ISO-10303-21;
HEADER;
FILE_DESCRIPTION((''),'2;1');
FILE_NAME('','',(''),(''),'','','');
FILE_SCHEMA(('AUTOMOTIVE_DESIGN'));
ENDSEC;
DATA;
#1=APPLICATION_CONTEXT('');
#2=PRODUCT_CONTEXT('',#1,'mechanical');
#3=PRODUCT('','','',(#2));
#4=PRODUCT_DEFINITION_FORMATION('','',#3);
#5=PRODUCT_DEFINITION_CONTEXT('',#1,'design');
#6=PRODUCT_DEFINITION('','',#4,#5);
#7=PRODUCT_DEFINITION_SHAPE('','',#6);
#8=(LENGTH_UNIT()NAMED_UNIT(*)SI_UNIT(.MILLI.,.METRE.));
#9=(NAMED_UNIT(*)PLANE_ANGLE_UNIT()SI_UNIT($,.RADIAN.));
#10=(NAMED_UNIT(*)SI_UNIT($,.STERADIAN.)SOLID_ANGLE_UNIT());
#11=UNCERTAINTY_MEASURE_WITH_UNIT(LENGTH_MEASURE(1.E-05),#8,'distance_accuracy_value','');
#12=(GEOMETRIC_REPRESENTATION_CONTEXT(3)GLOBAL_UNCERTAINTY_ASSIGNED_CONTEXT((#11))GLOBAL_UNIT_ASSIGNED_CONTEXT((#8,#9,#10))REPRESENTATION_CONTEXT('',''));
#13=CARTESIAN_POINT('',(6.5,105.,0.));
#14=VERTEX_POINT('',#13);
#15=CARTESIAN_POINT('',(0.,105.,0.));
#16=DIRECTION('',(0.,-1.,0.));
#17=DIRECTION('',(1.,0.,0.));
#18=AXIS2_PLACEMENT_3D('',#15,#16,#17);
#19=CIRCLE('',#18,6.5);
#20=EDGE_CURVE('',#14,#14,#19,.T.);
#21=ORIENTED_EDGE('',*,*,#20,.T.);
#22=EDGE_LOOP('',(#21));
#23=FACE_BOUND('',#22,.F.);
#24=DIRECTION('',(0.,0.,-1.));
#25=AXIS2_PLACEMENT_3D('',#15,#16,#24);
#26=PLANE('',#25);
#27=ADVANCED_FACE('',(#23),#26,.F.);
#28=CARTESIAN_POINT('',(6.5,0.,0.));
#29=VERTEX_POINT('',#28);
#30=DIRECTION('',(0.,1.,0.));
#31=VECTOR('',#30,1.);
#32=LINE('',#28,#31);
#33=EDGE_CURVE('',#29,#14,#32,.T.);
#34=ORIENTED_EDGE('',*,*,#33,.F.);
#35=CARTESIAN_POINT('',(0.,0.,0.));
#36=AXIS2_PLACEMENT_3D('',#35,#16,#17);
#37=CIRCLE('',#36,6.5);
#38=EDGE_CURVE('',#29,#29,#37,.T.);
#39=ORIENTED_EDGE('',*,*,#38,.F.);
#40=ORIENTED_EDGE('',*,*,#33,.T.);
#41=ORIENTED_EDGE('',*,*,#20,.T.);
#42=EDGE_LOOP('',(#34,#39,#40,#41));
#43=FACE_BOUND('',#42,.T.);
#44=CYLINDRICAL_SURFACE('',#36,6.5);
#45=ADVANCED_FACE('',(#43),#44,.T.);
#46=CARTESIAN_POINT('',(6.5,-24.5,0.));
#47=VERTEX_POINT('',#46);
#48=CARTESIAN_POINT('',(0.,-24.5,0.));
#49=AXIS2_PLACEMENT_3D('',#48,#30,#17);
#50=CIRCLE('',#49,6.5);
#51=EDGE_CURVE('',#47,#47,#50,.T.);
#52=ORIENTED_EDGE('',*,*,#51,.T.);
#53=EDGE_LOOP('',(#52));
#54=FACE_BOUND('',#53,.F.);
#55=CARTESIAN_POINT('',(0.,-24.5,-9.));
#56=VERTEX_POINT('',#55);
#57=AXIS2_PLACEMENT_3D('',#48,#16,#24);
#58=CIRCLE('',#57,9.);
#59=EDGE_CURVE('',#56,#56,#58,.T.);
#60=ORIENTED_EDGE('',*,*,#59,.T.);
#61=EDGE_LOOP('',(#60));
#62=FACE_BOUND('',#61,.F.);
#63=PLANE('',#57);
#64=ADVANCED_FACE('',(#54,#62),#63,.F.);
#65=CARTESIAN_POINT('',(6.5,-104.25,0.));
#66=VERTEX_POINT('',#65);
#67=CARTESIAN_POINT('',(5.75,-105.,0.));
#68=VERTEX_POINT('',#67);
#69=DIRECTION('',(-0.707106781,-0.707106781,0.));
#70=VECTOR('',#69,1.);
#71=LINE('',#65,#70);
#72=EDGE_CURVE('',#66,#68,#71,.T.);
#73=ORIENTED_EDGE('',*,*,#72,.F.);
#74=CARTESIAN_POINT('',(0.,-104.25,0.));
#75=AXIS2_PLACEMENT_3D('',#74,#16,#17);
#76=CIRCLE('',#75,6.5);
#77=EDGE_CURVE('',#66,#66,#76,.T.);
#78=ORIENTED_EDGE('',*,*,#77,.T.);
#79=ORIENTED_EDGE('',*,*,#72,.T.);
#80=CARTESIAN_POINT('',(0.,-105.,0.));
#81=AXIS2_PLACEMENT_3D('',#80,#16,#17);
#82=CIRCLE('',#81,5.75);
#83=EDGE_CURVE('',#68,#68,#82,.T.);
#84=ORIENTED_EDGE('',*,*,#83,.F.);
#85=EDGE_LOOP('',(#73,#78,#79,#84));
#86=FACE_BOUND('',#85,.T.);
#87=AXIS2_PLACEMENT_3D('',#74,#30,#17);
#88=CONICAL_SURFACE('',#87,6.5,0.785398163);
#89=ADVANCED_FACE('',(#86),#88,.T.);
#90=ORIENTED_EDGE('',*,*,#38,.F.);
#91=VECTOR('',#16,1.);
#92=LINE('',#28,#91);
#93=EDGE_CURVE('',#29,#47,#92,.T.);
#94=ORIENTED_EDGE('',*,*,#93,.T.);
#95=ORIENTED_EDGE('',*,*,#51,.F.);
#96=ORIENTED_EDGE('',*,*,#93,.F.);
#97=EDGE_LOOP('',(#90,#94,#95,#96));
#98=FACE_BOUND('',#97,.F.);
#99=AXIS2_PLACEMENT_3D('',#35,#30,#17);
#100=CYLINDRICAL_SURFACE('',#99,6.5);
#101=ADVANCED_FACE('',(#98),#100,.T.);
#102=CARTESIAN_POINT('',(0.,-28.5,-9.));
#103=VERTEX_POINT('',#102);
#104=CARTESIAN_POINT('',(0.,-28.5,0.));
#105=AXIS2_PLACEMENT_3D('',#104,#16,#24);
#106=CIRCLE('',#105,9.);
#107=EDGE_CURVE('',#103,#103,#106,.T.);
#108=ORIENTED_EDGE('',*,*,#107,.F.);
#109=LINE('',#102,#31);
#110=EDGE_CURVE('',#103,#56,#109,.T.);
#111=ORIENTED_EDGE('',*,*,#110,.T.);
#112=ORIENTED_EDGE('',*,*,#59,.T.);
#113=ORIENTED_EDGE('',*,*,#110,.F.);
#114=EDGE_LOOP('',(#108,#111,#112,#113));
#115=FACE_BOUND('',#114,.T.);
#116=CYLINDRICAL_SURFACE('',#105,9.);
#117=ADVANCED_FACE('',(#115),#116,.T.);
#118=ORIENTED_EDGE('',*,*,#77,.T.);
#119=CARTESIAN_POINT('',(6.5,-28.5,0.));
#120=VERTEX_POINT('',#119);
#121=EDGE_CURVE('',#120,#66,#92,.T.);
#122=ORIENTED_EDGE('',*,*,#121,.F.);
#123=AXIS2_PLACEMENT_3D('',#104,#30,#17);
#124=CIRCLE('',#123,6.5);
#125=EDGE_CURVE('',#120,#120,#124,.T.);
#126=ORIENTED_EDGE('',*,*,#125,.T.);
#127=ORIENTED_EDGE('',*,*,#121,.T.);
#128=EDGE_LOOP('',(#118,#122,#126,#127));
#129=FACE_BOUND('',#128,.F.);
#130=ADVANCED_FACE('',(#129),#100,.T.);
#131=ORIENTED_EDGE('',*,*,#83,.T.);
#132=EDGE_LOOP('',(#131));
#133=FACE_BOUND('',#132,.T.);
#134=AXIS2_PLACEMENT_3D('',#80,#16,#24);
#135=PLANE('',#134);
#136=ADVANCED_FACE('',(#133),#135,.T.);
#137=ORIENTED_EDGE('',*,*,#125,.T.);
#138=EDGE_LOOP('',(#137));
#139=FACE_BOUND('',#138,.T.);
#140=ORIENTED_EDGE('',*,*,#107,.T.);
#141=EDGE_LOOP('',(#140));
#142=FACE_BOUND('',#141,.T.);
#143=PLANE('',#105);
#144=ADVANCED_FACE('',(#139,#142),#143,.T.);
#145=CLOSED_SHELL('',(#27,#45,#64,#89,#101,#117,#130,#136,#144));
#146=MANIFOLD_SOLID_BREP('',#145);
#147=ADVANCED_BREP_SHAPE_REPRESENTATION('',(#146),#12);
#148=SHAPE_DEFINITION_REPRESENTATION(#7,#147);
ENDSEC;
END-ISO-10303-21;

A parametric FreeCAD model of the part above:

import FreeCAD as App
import Part
import Sketcher
from FreeCAD import Vector


def edges_at(feature, points):
    """Names of the edges that pass closest to the given points."""
    edges = feature.Shape.Edges
    near = lambda p: min(range(len(edges)), key=lambda i: edges[i].distToShape(Part.Vertex(*p))[0])
    return sorted({f"Edge{near(p) + 1}" for p in points})

doc = App.newDocument("Part")
body = doc.addObject("PartDesign::Body", "Body")

# Sketch on XZ plane
sketch1 = body.newObject("Sketcher::SketchObject", "Sketch")
sketch1.AttachmentSupport = (doc.getObject("XZ_Plane"), [""])
sketch1.MapMode = "FlatFace"
sketch1.addGeometry(Part.Circle(Vector(0, 0, 0), Vector(0, 0, 1), 6), False)
sketch1.addConstraint([
    Sketcher.Constraint("Coincident", 0, 3, -1, 1),
    Sketcher.Constraint("Diameter", 0, 13.0),
])
pad1 = body.newObject("PartDesign::Pad", "Pad")
pad1.Profile = sketch1
pad1.Length = 210
pad1.Midplane = True

# Sketch on XZ plane
sketch2 = body.newObject("Sketcher::SketchObject", "Sketch001")
sketch2.AttachmentSupport = (doc.getObject("XZ_Plane"), [""])
sketch2.MapMode = "FlatFace"
sketch2.AttachmentOffset = App.Placement(Vector(0, 0, 28.5), App.Rotation())
sketch2.addGeometry(Part.Circle(Vector(0, 0, 0), Vector(0, 0, 1), 9), False)
sketch2.addConstraint([
    Sketcher.Constraint("Coincident", 0, 3, -1, 1),
    Sketcher.Constraint("Diameter", 0, 18.0),
])
pad2 = body.newObject("PartDesign::Pad", "Pad001")
pad2.Profile = sketch2
pad2.Length = 4
pad2.Reversed = True
doc.recompute()

chamfer = body.newObject("PartDesign::Chamfer", "Chamfer")
chamfer.Base = (pad2, edges_at(pad2, [(-6.5, -105, 0)]))
chamfer.Size = 0.75

doc.recompute()
